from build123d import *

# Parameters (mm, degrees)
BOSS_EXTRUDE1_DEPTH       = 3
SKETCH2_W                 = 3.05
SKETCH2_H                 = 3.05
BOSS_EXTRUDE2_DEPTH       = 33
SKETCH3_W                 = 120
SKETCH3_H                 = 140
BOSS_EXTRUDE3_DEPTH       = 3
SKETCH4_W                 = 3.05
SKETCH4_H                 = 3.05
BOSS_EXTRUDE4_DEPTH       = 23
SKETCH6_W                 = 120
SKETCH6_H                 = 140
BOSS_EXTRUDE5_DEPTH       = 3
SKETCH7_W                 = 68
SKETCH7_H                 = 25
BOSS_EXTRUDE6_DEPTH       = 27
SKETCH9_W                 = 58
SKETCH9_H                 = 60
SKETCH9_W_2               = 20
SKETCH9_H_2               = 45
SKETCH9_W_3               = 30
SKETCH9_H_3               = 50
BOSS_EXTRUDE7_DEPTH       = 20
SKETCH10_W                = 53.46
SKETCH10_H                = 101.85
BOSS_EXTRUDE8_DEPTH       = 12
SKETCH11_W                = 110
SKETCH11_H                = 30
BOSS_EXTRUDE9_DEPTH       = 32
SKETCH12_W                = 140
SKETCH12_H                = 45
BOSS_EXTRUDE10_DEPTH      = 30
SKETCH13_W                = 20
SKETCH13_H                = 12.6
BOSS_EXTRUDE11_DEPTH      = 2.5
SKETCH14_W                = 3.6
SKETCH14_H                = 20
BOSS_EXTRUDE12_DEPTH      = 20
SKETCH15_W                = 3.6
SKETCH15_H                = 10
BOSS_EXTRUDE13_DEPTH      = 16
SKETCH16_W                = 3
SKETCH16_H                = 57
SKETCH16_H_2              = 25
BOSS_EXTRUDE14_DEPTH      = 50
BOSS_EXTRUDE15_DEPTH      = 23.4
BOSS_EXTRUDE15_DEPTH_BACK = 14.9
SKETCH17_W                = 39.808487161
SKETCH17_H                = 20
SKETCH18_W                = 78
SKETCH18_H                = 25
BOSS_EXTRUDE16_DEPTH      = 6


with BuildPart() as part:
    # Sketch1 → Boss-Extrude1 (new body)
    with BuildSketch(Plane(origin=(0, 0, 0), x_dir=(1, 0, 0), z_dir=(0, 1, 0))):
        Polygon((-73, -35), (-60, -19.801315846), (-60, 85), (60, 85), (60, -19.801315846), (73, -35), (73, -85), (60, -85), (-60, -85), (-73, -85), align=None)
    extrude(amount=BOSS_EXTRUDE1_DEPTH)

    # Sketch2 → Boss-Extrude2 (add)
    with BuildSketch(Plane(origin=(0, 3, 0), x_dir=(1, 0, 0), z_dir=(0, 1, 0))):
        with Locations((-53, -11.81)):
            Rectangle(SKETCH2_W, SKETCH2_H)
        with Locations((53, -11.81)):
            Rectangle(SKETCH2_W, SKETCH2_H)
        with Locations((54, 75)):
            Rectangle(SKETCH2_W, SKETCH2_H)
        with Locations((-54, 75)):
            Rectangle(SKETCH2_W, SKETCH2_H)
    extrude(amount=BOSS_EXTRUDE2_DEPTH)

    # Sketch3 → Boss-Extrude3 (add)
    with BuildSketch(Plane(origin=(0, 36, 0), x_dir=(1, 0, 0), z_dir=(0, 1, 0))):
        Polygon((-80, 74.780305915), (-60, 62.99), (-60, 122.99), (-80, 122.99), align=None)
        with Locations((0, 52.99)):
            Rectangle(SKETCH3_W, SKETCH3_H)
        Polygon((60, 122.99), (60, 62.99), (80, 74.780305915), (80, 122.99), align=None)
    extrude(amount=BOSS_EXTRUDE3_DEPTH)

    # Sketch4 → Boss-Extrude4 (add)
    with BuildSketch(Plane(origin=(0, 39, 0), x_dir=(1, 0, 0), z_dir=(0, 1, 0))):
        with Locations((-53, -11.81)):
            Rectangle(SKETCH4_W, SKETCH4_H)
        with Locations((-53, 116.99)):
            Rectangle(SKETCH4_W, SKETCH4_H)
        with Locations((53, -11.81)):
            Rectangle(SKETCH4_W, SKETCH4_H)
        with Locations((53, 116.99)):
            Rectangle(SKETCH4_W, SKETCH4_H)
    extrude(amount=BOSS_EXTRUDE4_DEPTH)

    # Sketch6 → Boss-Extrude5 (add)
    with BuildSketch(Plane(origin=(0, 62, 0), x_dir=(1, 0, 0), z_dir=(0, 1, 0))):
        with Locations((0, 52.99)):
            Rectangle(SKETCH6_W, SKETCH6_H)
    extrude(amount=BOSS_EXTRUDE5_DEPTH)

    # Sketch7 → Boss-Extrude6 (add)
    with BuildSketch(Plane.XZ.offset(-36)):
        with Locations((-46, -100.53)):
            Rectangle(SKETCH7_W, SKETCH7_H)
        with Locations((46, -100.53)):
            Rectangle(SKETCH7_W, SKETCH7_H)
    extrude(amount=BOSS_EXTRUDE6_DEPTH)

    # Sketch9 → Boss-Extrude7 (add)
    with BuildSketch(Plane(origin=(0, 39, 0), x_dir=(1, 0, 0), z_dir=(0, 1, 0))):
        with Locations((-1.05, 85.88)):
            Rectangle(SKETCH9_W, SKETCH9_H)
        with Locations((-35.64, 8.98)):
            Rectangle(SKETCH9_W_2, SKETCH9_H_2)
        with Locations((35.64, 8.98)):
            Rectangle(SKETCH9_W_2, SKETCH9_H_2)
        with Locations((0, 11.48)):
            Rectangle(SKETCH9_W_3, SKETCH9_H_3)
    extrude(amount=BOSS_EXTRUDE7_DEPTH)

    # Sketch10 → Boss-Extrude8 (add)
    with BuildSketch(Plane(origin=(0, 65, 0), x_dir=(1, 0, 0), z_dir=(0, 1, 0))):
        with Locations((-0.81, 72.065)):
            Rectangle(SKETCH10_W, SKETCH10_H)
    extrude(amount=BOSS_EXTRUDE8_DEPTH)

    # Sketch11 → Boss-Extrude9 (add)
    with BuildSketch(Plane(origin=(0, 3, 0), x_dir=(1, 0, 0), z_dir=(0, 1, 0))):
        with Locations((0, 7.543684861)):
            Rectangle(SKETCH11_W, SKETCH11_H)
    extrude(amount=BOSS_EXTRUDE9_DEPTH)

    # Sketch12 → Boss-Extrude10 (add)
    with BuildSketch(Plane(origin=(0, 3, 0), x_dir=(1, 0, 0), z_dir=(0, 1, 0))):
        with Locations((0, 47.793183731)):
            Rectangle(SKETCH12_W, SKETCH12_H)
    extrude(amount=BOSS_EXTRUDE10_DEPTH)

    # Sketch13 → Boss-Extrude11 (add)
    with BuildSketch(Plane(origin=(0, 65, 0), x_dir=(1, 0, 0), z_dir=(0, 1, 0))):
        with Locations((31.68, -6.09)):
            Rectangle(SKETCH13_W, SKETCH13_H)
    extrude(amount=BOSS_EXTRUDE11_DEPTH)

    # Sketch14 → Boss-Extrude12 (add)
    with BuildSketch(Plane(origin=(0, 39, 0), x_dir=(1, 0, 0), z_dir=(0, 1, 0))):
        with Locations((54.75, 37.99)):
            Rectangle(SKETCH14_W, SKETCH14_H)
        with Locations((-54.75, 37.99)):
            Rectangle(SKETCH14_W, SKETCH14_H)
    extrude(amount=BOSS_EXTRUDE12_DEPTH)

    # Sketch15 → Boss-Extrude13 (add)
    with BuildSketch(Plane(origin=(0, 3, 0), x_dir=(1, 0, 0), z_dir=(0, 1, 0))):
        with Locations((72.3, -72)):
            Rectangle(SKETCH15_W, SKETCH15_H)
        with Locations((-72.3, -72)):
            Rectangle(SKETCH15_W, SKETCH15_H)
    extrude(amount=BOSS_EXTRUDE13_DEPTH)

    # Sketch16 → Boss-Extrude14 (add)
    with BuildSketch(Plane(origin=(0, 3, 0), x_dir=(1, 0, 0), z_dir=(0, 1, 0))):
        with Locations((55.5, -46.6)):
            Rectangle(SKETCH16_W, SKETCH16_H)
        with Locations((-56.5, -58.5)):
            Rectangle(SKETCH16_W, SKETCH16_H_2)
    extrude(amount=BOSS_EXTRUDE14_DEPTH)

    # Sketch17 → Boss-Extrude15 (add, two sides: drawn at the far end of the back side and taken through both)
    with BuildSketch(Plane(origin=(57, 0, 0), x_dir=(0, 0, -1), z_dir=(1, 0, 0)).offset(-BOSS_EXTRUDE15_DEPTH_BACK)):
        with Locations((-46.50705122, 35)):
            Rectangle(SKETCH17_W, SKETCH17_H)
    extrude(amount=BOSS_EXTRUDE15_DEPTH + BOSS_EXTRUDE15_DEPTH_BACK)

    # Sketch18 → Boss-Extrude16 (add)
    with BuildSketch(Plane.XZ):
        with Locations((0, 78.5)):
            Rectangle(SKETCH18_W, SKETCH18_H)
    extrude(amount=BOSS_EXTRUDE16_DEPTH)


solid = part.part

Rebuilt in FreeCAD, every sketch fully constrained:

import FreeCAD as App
import Part
import Sketcher
Q = App.Units.Quantity


def add_polygon(sketch, points):
    """Adds a closed chain of lines whose ends are joined by coincident constraints."""
    first, n = sketch.GeometryCount, len(points)
    for a, b in zip(points, points[1:] + points[:1]):
        sketch.addGeometry(Part.LineSegment(App.Vector(*a, 0), App.Vector(*b, 0)), False)
    for i in range(n):
        sketch.addConstraint(Sketcher.Constraint("Coincident", first + i, 2, first + (i + 1) % n, 1))

doc = App.newDocument("Part")
params = doc.addObject("Spreadsheet::Sheet", "Params")
for row, (alias, value) in enumerate([
    ("sketch1_width", "146 mm"),
    ("sketch1_width2", "120 mm"),
    ("sketch1_height", "50 mm"),
    ("sketch1_length", "20 mm"),
    ("pad1_length", "3 mm"),
    ("sketch2_width", "3.05 mm"),
    ("pad2_length", "33 mm"),
    ("sketch3_width", "120 mm"),
    ("sketch3_width2", "160 mm"),
    ("sketch3_height", "80 mm"),
    ("pad3_length", "3 mm"),
    ("sketch4_width", "3.05 mm"),
    ("pad4_length", "23 mm"),
    ("sketch5_width", "120 mm"),
    ("sketch5_height", "140 mm"),
    ("pad5_length", "3 mm"),
    ("sketch6_width", "68 mm"),
    ("sketch6_height", "25 mm"),
    ("pad6_length", "27 mm"),
    ("sketch7_width", "58 mm"),
    ("sketch7_width2", "20 mm"),
    ("sketch7_width3", "30 mm"),
    ("sketch7_height", "60 mm"),
    ("sketch7_height2", "45 mm"),
    ("pad7_length", "20 mm"),
    ("sketch8_width", "53.46 mm"),
    ("sketch8_height", "101.85 mm"),
    ("pad8_length", "12 mm"),
    ("sketch9_width", "110 mm"),
    ("sketch9_height", "30 mm"),
    ("pad9_length", "32 mm"),
    ("sketch10_width", "140 mm"),
    ("sketch10_height", "45 mm"),
    ("pad10_length", "30 mm"),
    ("sketch11_width", "20 mm"),
    ("sketch11_height", "12.6 mm"),
    ("pad11_length", "2.5 mm"),
    ("sketch12_height", "20 mm"),
    ("sketch12_width", "3.6 mm"),
    ("pad12_length", "20 mm"),
    ("sketch13_height", "10 mm"),
    ("sketch13_width", "3.6 mm"),
    ("pad13_length", "16 mm"),
    ("sketch14_width", "3 mm"),
    ("sketch14_height", "57 mm"),
    ("sketch14_height2", "25 mm"),
    ("pad14_length", "50 mm"),
    ("sketch15_width", "20 mm"),
    ("pad15_length", "23.4 mm"),
    ("pad15_length2", "14.9 mm"),
    ("sketch16_width", "78 mm"),
    ("sketch16_height", "25 mm"),
    ("pad16_length", "6 mm"),
], start=1):
    params.set(f"A{row}", alias)
    params.set(f"B{row}", "=" + value)
    params.setAlias(f"B{row}", alias)

body = doc.addObject("PartDesign::Body", "Body")

# Sketch on XZ plane
sketch1 = body.newObject("Sketcher::SketchObject", "Sketch")
sketch1.AttachmentSupport = (doc.getObject("XZ_Plane"), [""])
sketch1.MapMode = "FlatFace"
add_polygon(sketch1, [(-60, 20), (-73, 35), (-73, 85), (73, 85), (73, 35), (60, 20), (60, -85), (-60, -85)])  # lines 0-7
sketch1.addConstraint([
    Sketcher.Constraint("Vertical", 1),
    Sketcher.Constraint("Horizontal", 2),
    Sketcher.Constraint("Vertical", 3),
    Sketcher.Constraint("Vertical", 5),
    Sketcher.Constraint("Horizontal", 6),
    Sketcher.Constraint("Vertical", 7),
    Sketcher.Constraint("Symmetric", 0, 2, 3, 2, -2),
    Sketcher.Constraint("Symmetric", 4, 2, 7, 2, -2),
    Sketcher.Constraint("DistanceX", 2, 1, 2, 2, Q("146 mm")),
    Sketcher.Constraint("DistanceX", 6, 2, 6, 1, Q("120 mm")),
    Sketcher.Constraint("DistanceY", 1, 1, 1, 2, Q("50 mm")),
    Sketcher.Constraint("Distance", 0, Q("20 mm")),
    Sketcher.Constraint("DistanceY", -1, 1, 0, 2, Q("35 mm")),
    Sketcher.Constraint("DistanceY", 5, 2, -1, 1, Q("85 mm")),
])
sketch1.setExpression("Constraints[16]", "Params.sketch1_width")
sketch1.setExpression("Constraints[17]", "Params.sketch1_width2")
sketch1.setExpression("Constraints[18]", "Params.sketch1_height")
sketch1.setExpression("Constraints[19]", "Params.sketch1_length")
pad1 = body.newObject("PartDesign::Pad", "Pad")
pad1.Profile = sketch1
pad1.setExpression("Length", "Params.pad1_length")
pad1.Reversed = True

# Sketch on XZ plane
sketch2 = body.newObject("Sketcher::SketchObject", "Sketch001")
sketch2.AttachmentSupport = (doc.getObject("XZ_Plane"), [""])
sketch2.MapMode = "FlatFace"
sketch2.AttachmentOffset = App.Placement(App.Vector(0, 0, -3), App.Rotation())
add_polygon(sketch2, [(-54.5, 10.3), (-54.5, 13.3), (-51.5, 13.3), (-51.5, 10.3)])  # lines 0-3
add_polygon(sketch2, [(51.5, 10.3), (51.5, 13.3), (54.5, 13.3), (54.5, 10.3)])  # lines 4-7
add_polygon(sketch2, [(52.5, -76.5), (52.5, -73.5), (55.5, -73.5), (55.5, -76.5)])  # lines 8-11
add_polygon(sketch2, [(-55.5, -76.5), (-55.5, -73.5), (-52.5, -73.5), (-52.5, -76.5)])  # lines 12-15
sketch2.addConstraint([
    Sketcher.Constraint("Vertical", 0),
    Sketcher.Constraint("Horizontal", 1),
    Sketcher.Constraint("Vertical", 2),
    Sketcher.Constraint("Horizontal", 3),
    Sketcher.Constraint("Vertical", 4),
    Sketcher.Constraint("Horizontal", 5),
    Sketcher.Constraint("Vertical", 6),
    Sketcher.Constraint("Horizontal", 7),
    Sketcher.Constraint("Vertical", 8),
    Sketcher.Constraint("Horizontal", 9),
    Sketcher.Constraint("Vertical", 10),
    Sketcher.Constraint("Horizontal", 11),
    Sketcher.Constraint("Vertical", 12),
    Sketcher.Constraint("Horizontal", 13),
    Sketcher.Constraint("Vertical", 14),
    Sketcher.Constraint("Horizontal", 15),
    Sketcher.Constraint("Symmetric", 1, 2, 4, 2, -2),
    Sketcher.Constraint("Symmetric", 3, 2, 6, 2, -2),
    Sketcher.Constraint("Symmetric", 9, 2, 12, 2, -2),
    Sketcher.Constraint("Symmetric", 11, 2, 14, 2, -2),
    Sketcher.Constraint("Equal", 7, 9),
    Sketcher.Constraint("Equal", 15, 0),
    Sketcher.Constraint("Equal", 6, 8),
    Sketcher.Constraint("DistanceX", 0, 2, 4, 2, Q("106 mm")),
    Sketcher.Constraint("DistanceX", 7, 2, 8, 2, Q("1 mm")),
    Sketcher.Constraint("DistanceX", 1, 1, 1, 2, Q("3.05 mm")),
    Sketcher.Constraint("DistanceY", 8, 2, 7, 2, Q("83.76 mm")),
    Sketcher.Constraint("DistanceY", -1, 1, 0, 2, Q("13.335 mm")),
])
sketch2.setExpression("Constraints[41]", "Params.sketch2_width")
pad2 = body.newObject("PartDesign::Pad", "Pad001")
pad2.Profile = sketch2
pad2.setExpression("Length", "Params.pad2_length")
pad2.Reversed = True

# Sketch on XZ plane
sketch3 = body.newObject("Sketcher::SketchObject", "Sketch002")
sketch3.AttachmentSupport = (doc.getObject("XZ_Plane"), [""])
sketch3.MapMode = "FlatFace"
sketch3.AttachmentOffset = App.Placement(App.Vector(0, 0, -36), App.Rotation())
add_polygon(sketch3, [(-80, -75), (-60, -63), (-60, 17), (60, 17), (60, -63), (80, -75), (80, -123), (-80, -123)])  # lines 0-7
sketch3.addConstraint([
    Sketcher.Constraint("Vertical", 1),
    Sketcher.Constraint("Horizontal", 2),
    Sketcher.Constraint("Vertical", 3),
    Sketcher.Constraint("Vertical", 5),
    Sketcher.Constraint("Horizontal", 6),
    Sketcher.Constraint("Vertical", 7),
    Sketcher.Constraint("Symmetric", 0, 2, 3, 2, -2),
    Sketcher.Constraint("Symmetric", 4, 2, 7, 2, -2),
    Sketcher.Constraint("DistanceX", 2, 1, 2, 2, Q("120 mm")),
    Sketcher.Constraint("DistanceX", 6, 2, 6, 1, Q("160 mm")),
    Sketcher.Constraint("DistanceY", 1, 1, 1, 2, Q("80 mm")),
    Sketcher.Constraint("DistanceY", 5, 2, 3, 2, Q("60 mm")),
    Sketcher.Constraint("Angle", 0, Q("30.52 deg")),
    Sketcher.Constraint("DistanceY", 0, 2, -1, 1, Q("62.99 mm")),
])
sketch3.setExpression("Constraints[16]", "Params.sketch3_width")
sketch3.setExpression("Constraints[17]", "Params.sketch3_width2")
sketch3.setExpression("Constraints[18]", "Params.sketch3_height")
pad3 = body.newObject("PartDesign::Pad", "Pad002")
pad3.Profile = sketch3
pad3.setExpression("Length", "Params.pad3_length")
pad3.Reversed = True

# Sketch on XZ plane
sketch4 = body.newObject("Sketcher::SketchObject", "Sketch003")
sketch4.AttachmentSupport = (doc.getObject("XZ_Plane"), [""])
sketch4.MapMode = "FlatFace"
sketch4.AttachmentOffset = App.Placement(App.Vector(0, 0, -39), App.Rotation())
add_polygon(sketch4, [(-54.5, 10.3), (-54.5, 13.3), (-51.5, 13.3), (-51.5, 10.3)])  # lines 0-3
add_polygon(sketch4, [(-54.5, -118.5), (-54.5, -115.5), (-51.5, -115.5), (-51.5, -118.5)])  # lines 4-7
add_polygon(sketch4, [(51.5, 10.3), (51.5, 13.3), (54.5, 13.3), (54.5, 10.3)])  # lines 8-11
add_polygon(sketch4, [(51.5, -118.5), (51.5, -115.5), (54.5, -115.5), (54.5, -118.5)])  # lines 12-15
sketch4.addConstraint([
    Sketcher.Constraint("Vertical", 0),
    Sketcher.Constraint("Horizontal", 1),
    Sketcher.Constraint("Vertical", 2),
    Sketcher.Constraint("Horizontal", 3),
    Sketcher.Constraint("Vertical", 4),
    Sketcher.Constraint("Horizontal", 5),
    Sketcher.Constraint("Vertical", 6),
    Sketcher.Constraint("Horizontal", 7),
    Sketcher.Constraint("Vertical", 8),
    Sketcher.Constraint("Horizontal", 9),
    Sketcher.Constraint("Vertical", 10),
    Sketcher.Constraint("Horizontal", 11),
    Sketcher.Constraint("Vertical", 12),
    Sketcher.Constraint("Horizontal", 13),
    Sketcher.Constraint("Vertical", 14),
    Sketcher.Constraint("Horizontal", 15),
    Sketcher.Constraint("Symmetric", 1, 2, 8, 2, -2),
    Sketcher.Constraint("Symmetric", 3, 2, 10, 2, -2),
    Sketcher.Constraint("Symmetric", 5, 2, 12, 2, -2),
    Sketcher.Constraint("Symmetric", 7, 2, 14, 2, -2),
    Sketcher.Constraint("Vertical", 3, 2, 4, 2),
    Sketcher.Constraint("Vertical", 2, 2, 5, 2),
    Sketcher.Constraint("Equal", 15, 0),
    Sketcher.Constraint("Equal", 2, 4),
    Sketcher.Constraint("DistanceX", 0, 2, 8, 2, Q("106 mm")),
    Sketcher.Constraint("DistanceX", 1, 1, 1, 2, Q("3.05 mm")),
    Sketcher.Constraint("DistanceY", 4, 2, 0, 2, Q("128.8 mm")),
    Sketcher.Constraint("DistanceY", -1, 1, 0, 2, Q("13.335 mm")),
])
sketch4.setExpression("Constraints[41]", "Params.sketch4_width")
pad4 = body.newObject("PartDesign::Pad", "Pad003")
pad4.Profile = sketch4
pad4.setExpression("Length", "Params.pad4_length")
pad4.Reversed = True

# Sketch on XZ plane
sketch5 = body.newObject("Sketcher::SketchObject", "Sketch004")
sketch5.AttachmentSupport = (doc.getObject("XZ_Plane"), [""])
sketch5.MapMode = "FlatFace"
sketch5.AttachmentOffset = App.Placement(App.Vector(0, 0, -62), App.Rotation())
add_polygon(sketch5, [(-60, -123), (-60, 17), (60, 17), (60, -123)])  # lines 0-3
sketch5.addConstraint([
    Sketcher.Constraint("Vertical", 0),
    Sketcher.Constraint("Horizontal", 1),
    Sketcher.Constraint("Vertical", 2),
    Sketcher.Constraint("Horizontal", 3),
    Sketcher.Constraint("DistanceX", 1, 1, 1, 2, Q("120 mm")),
    Sketcher.Constraint("DistanceY", 0, 1, 0, 2, Q("140 mm")),
    Sketcher.Constraint("DistanceX", 0, 2, -1, 1, Q("60 mm")),
    Sketcher.Constraint("DistanceY", -1, 1, 0, 2, Q("17.01 mm")),
])
sketch5.setExpression("Constraints[8]", "Params.sketch5_width")
sketch5.setExpression("Constraints[9]", "Params.sketch5_height")
pad5 = body.newObject("PartDesign::Pad", "Pad004")
pad5.Profile = sketch5
pad5.setExpression("Length", "Params.pad5_length")
pad5.Reversed = True

# Sketch on XZ plane
sketch6 = body.newObject("Sketcher::SketchObject", "Sketch005")
sketch6.AttachmentSupport = (doc.getObject("XZ_Plane"), [""])
sketch6.MapMode = "FlatFace"
sketch6.AttachmentOffset = App.Placement(App.Vector(0, 0, -36), App.Rotation())
add_polygon(sketch6, [(-80, -88), (-80, -113), (-12, -113), (-12, -88)])  # lines 0-3
add_polygon(sketch6, [(12, -88), (12, -113), (80, -113), (80, -88)])  # lines 4-7
sketch6.addConstraint([
    Sketcher.Constraint("Vertical", 0),
    Sketcher.Constraint("Horizontal", 1),
    Sketcher.Constraint("Vertical", 2),
    Sketcher.Constraint("Horizontal", 3),
    Sketcher.Constraint("Vertical", 4),
    Sketcher.Constraint("Horizontal", 5),
    Sketcher.Constraint("Vertical", 6),
    Sketcher.Constraint("Horizontal", 7),
    Sketcher.Constraint("Symmetric", 1, 2, 4, 2, -2),
    Sketcher.Constraint("Symmetric", 3, 2, 6, 2, -2),
    Sketcher.Constraint("DistanceX", 1, 1, 1, 2, Q("68 mm")),
    Sketcher.Constraint("DistanceY", 0, 2, 0, 1, Q("25 mm")),
    Sketcher.Constraint("DistanceX", 0, 2, -1, 1, Q("80 mm")),
    Sketcher.Constraint("DistanceY", 0, 2, -1, 1, Q("113.03 mm")),
])
sketch6.setExpression("Constraints[18]", "Params.sketch6_width")
sketch6.setExpression("Constraints[19]", "Params.sketch6_height")
pad6 = body.newObject("PartDesign::Pad", "Pad005")
pad6.Profile = sketch6
pad6.setExpression("Length", "Params.pad6_length")

# Sketch on XZ plane
sketch7 = body.newObject("Sketcher::SketchObject", "Sketch006")
sketch7.AttachmentSupport = (doc.getObject("XZ_Plane"), [""])
sketch7.MapMode = "FlatFace"
sketch7.AttachmentOffset = App.Placement(App.Vector(0, 0, -39), App.Rotation())
add_polygon(sketch7, [(-30, -116), (-30, -56), (28, -56), (28, -116)])  # lines 0-3
add_polygon(sketch7, [(-46, -31), (-46, 14), (-26, 14), (-26, -31)])  # lines 4-7
add_polygon(sketch7, [(26, -31), (26, 14), (46, 14), (46, -31)])  # lines 8-11
add_polygon(sketch7, [(-15, -36), (-15, 14), (15, 14), (15, -36)])  # lines 12-15
sketch7.addConstraint([
    Sketcher.Constraint("Vertical", 0),
    Sketcher.Constraint("Horizontal", 1),
    Sketcher.Constraint("Vertical", 2),
    Sketcher.Constraint("Horizontal", 3),
    Sketcher.Constraint("Vertical", 4),
    Sketcher.Constraint("Horizontal", 5),
    Sketcher.Constraint("Vertical", 6),
    Sketcher.Constraint("Horizontal", 7),
    Sketcher.Constraint("Vertical", 8),
    Sketcher.Constraint("Horizontal", 9),
    Sketcher.Constraint("Vertical", 10),
    Sketcher.Constraint("Horizontal", 11),
    Sketcher.Constraint("Vertical", 12),
    Sketcher.Constraint("Horizontal", 13),
    Sketcher.Constraint("Vertical", 14),
    Sketcher.Constraint("Horizontal", 15),
    Sketcher.Constraint("Symmetric", 5, 2, 8, 2, -2),
    Sketcher.Constraint("Symmetric", 7, 2, 10, 2, -2),
    Sketcher.Constraint("Horizontal", 9, 2, 12, 2),
    Sketcher.Constraint("DistanceX", 1, 1, 1, 2, Q("58 mm")),
    Sketcher.Constraint("DistanceX", 5, 1, 5, 2, Q("20 mm")),
    Sketcher.Constraint("DistanceX", 13, 1, 13, 2, Q("30 mm")),
    Sketcher.Constraint("DistanceY", 0, 1, 0, 2, Q("60 mm")),
    Sketcher.Constraint("DistanceY", 4, 1, 4, 2, Q("45 mm")),
    Sketcher.Constraint("DistanceY", 12, 1, 12, 2, Q("50 mm")),
    Sketcher.Constraint("DistanceX", 12, 2, -1, 1, Q("15 mm")),
    Sketcher.Constraint("DistanceY", 0, 2, 4, 2, Q("69.4 mm")),
    Sketcher.Constraint("DistanceX", 0, 2, -1, 1, Q("30.05 mm")),
    Sketcher.Constraint("DistanceY", 0, 2, -1, 1, Q("55.88 mm")),
    Sketcher.Constraint("DistanceX", 4, 2, -1, 1, Q("45.64 mm")),
])
sketch7.setExpression("Constraints[35]", "Params.sketch7_width")
sketch7.setExpression("Constraints[36]", "Params.sketch7_width2")
sketch7.setExpression("Constraints[37]", "Params.sketch7_width3")
sketch7.setExpression("Constraints[38]", "Params.sketch7_height")
sketch7.setExpression("Constraints[39]", "Params.sketch7_height2")
pad7 = body.newObject("PartDesign::Pad", "Pad006")
pad7.Profile = sketch7
pad7.setExpression("Length", "Params.pad7_length")
pad7.Reversed = True

# Sketch on XZ plane
sketch8 = body.newObject("Sketcher::SketchObject", "Sketch007")
sketch8.AttachmentSupport = (doc.getObject("XZ_Plane"), [""])
sketch8.MapMode = "FlatFace"
sketch8.AttachmentOffset = App.Placement(App.Vector(0, 0, -65), App.Rotation())
add_polygon(sketch8, [(-28, -123), (-28, -21), (26, -21), (26, -123)])  # lines 0-3
sketch8.addConstraint([
    Sketcher.Constraint("Vertical", 0),
    Sketcher.Constraint("Horizontal", 1),
    Sketcher.Constraint("Vertical", 2),
    Sketcher.Constraint("Horizontal", 3),
    Sketcher.Constraint("DistanceX", 1, 1, 1, 2, Q("53.46 mm")),
    Sketcher.Constraint("DistanceY", 0, 1, 0, 2, Q("101.85 mm")),
    Sketcher.Constraint("DistanceX", 0, 2, -1, 1, Q("27.54 mm")),
    Sketcher.Constraint("DistanceY", 0, 2, -1, 1, Q("21.14 mm")),
])
sketch8.setExpression("Constraints[8]", "Params.sketch8_width")
sketch8.setExpression("Constraints[9]", "Params.sketch8_height")
pad8 = body.newObject("PartDesign::Pad", "Pad007")
pad8.Profile = sketch8
pad8.setExpression("Length", "Params.pad8_length")
pad8.Reversed = True

# Sketch on XZ plane
sketch9 = body.newObject("Sketcher::SketchObject", "Sketch008")
sketch9.AttachmentSupport = (doc.getObject("XZ_Plane"), [""])
sketch9.MapMode = "FlatFace"
sketch9.AttachmentOffset = App.Placement(App.Vector(0, 0, -3), App.Rotation())
add_polygon(sketch9, [(-55, -23), (-55, 7), (55, 7), (55, -23)])  # lines 0-3
sketch9.addConstraint([
    Sketcher.Constraint("Vertical", 0),
    Sketcher.Constraint("Horizontal", 1),
    Sketcher.Constraint("Vertical", 2),
    Sketcher.Constraint("Horizontal", 3),
    Sketcher.Constraint("DistanceX", 1, 1, 1, 2, Q("110 mm")),
    Sketcher.Constraint("DistanceY", 0, 1, 0, 2, Q("30 mm")),
    Sketcher.Constraint("DistanceX", 0, 2, -1, 1, Q("55 mm")),
    Sketcher.Constraint("DistanceY", -1, 1, 0, 2, Q("7.456315 mm")),
])
sketch9.setExpression("Constraints[8]", "Params.sketch9_width")
sketch9.setExpression("Constraints[9]", "Params.sketch9_height")
pad9 = body.newObject("PartDesign::Pad", "Pad008")
pad9.Profile = sketch9
pad9.setExpression("Length", "Params.pad9_length")
pad9.Reversed = True

# Sketch on XZ plane
sketch10 = body.newObject("Sketcher::SketchObject", "Sketch009")
sketch10.AttachmentSupport = (doc.getObject("XZ_Plane"), [""])
sketch10.MapMode = "FlatFace"
sketch10.AttachmentOffset = App.Placement(App.Vector(0, 0, -3), App.Rotation())
add_polygon(sketch10, [(-70, -70), (-70, -25), (70, -25), (70, -70)])  # lines 0-3
sketch10.addConstraint([
    Sketcher.Constraint("Vertical", 0),
    Sketcher.Constraint("Horizontal", 1),
    Sketcher.Constraint("Vertical", 2),
    Sketcher.Constraint("Horizontal", 3),
    Sketcher.Constraint("DistanceX", 1, 1, 1, 2, Q("140 mm")),
    Sketcher.Constraint("DistanceY", 0, 1, 0, 2, Q("45 mm")),
    Sketcher.Constraint("DistanceX", 0, 2, -1, 1, Q("70 mm")),
    Sketcher.Constraint("DistanceY", 0, 2, -1, 1, Q("25.293184 mm")),
])
sketch10.setExpression("Constraints[8]", "Params.sketch10_width")
sketch10.setExpression("Constraints[9]", "Params.sketch10_height")
pad10 = body.newObject("PartDesign::Pad", "Pad009")
pad10.Profile = sketch10
pad10.setExpression("Length", "Params.pad10_length")
pad10.Reversed = True

# Sketch on XZ plane
sketch11 = body.newObject("Sketcher::SketchObject", "Sketch010")
sketch11.AttachmentSupport = (doc.getObject("XZ_Plane"), [""])
sketch11.MapMode = "FlatFace"
sketch11.AttachmentOffset = App.Placement(App.Vector(0, 0, -65), App.Rotation())
add_polygon(sketch11, [(22, 0), (22, 12), (42, 12), (42, 0)])  # lines 0-3
sketch11.addConstraint([
    Sketcher.Constraint("Vertical", 0),
    Sketcher.Constraint("Horizontal", 1),
    Sketcher.Constraint("Vertical", 2),
    Sketcher.Constraint("Horizontal", 3),
    Sketcher.Constraint("DistanceX", 1, 1, 1, 2, Q("20 mm")),
    Sketcher.Constraint("DistanceY", 0, 1, 0, 2, Q("12.6 mm")),
    Sketcher.Constraint("DistanceX", -1, 1, 0, 2, Q("21.68 mm")),
    Sketcher.Constraint("DistanceY", -1, 1, 0, 2, Q("12.39 mm")),
])
sketch11.setExpression("Constraints[8]", "Params.sketch11_width")
sketch11.setExpression("Constraints[9]", "Params.sketch11_height")
pad11 = body.newObject("PartDesign::Pad", "Pad010")
pad11.Profile = sketch11
pad11.setExpression("Length", "Params.pad11_length")
pad11.Reversed = True

# Sketch on XZ plane
sketch12 = body.newObject("Sketcher::SketchObject", "Sketch011")
sketch12.AttachmentSupport = (doc.getObject("XZ_Plane"), [""])
sketch12.MapMode = "FlatFace"
sketch12.AttachmentOffset = App.Placement(App.Vector(0, 0, -39), App.Rotation())
add_polygon(sketch12, [(53, -48), (53, -28), (56.5, -28), (56.5, -48)])  # lines 0-3
add_polygon(sketch12, [(-56.5, -48), (-56.5, -28), (-53, -28), (-53, -48)])  # lines 4-7
sketch12.addConstraint([
    Sketcher.Constraint("Vertical", 0),
    Sketcher.Constraint("Horizontal", 1),
    Sketcher.Constraint("Vertical", 2),
    Sketcher.Constraint("Horizontal", 3),
    Sketcher.Constraint("Vertical", 4),
    Sketcher.Constraint("Horizontal", 5),
    Sketcher.Constraint("Vertical", 6),
    Sketcher.Constraint("Horizontal", 7),
    Sketcher.Constraint("Symmetric", 1, 2, 4, 2, -2),
    Sketcher.Constraint("Symmetric", 3, 2, 6, 2, -2),
    Sketcher.Constraint("DistanceY", 0, 1, 0, 2, Q("20 mm")),
    Sketcher.Constraint("DistanceX", 1, 1, 1, 2, Q("3.6 mm")),
    Sketcher.Constraint("DistanceX", 4, 2, 0, 2, Q("109.5 mm")),
    Sketcher.Constraint("DistanceY", 0, 2, -1, 1, Q("27.99 mm")),
])
sketch12.setExpression("Constraints[18]", "Params.sketch12_height")
sketch12.setExpression("Constraints[19]", "Params.sketch12_width")
pad12 = body.newObject("PartDesign::Pad", "Pad011")
pad12.Profile = sketch12
pad12.setExpression("Length", "Params.pad12_length")
pad12.Reversed = True

# Sketch on XZ plane
sketch13 = body.newObject("Sketcher::SketchObject", "Sketch012")
sketch13.AttachmentSupport = (doc.getObject("XZ_Plane"), [""])
sketch13.MapMode = "FlatFace"
sketch13.AttachmentOffset = App.Placement(App.Vector(0, 0, -3), App.Rotation())
add_polygon(sketch13, [(70.5, 67), (70.5, 77), (74.1, 77), (74.1, 67)])  # lines 0-3
add_polygon(sketch13, [(-74.1, 67), (-74.1, 77), (-70.5, 77), (-70.5, 67)])  # lines 4-7
sketch13.addConstraint([
    Sketcher.Constraint("Vertical", 0),
    Sketcher.Constraint("Horizontal", 1),
    Sketcher.Constraint("Vertical", 2),
    Sketcher.Constraint("Horizontal", 3),
    Sketcher.Constraint("Vertical", 4),
    Sketcher.Constraint("Horizontal", 5),
    Sketcher.Constraint("Vertical", 6),
    Sketcher.Constraint("Horizontal", 7),
    Sketcher.Constraint("Symmetric", 1, 2, 4, 2, -2),
    Sketcher.Constraint("Symmetric", 3, 2, 6, 2, -2),
    Sketcher.Constraint("DistanceY", 0, 1, 0, 2, Q("10 mm")),
    Sketcher.Constraint("DistanceX", 1, 1, 1, 2, Q("3.6 mm")),
    Sketcher.Constraint("DistanceY", -1, 1, 0, 2, Q("77 mm")),
    Sketcher.Constraint("DistanceX", 5, 2, 0, 2, Q("141 mm")),
])
sketch13.setExpression("Constraints[18]", "Params.sketch13_height")
sketch13.setExpression("Constraints[19]", "Params.sketch13_width")
pad13 = body.newObject("PartDesign::Pad", "Pad012")
pad13.Profile = sketch13
pad13.setExpression("Length", "Params.pad13_length")
pad13.Reversed = True

# Sketch on XZ plane
sketch14 = body.newObject("Sketcher::SketchObject", "Sketch013")
sketch14.AttachmentSupport = (doc.getObject("XZ_Plane"), [""])
sketch14.MapMode = "FlatFace"
sketch14.AttachmentOffset = App.Placement(App.Vector(0, 0, -3), App.Rotation())
add_polygon(sketch14, [(54, 18.1), (54, 75.1), (57, 75.1), (57, 18.1)])  # lines 0-3
add_polygon(sketch14, [(-58, 46), (-58, 71), (-55, 71), (-55, 46)])  # lines 4-7
sketch14.addConstraint([
    Sketcher.Constraint("Vertical", 0),
    Sketcher.Constraint("Horizontal", 1),
    Sketcher.Constraint("Vertical", 2),
    Sketcher.Constraint("Horizontal", 3),
    Sketcher.Constraint("Vertical", 4),
    Sketcher.Constraint("Horizontal", 5),
    Sketcher.Constraint("Vertical", 6),
    Sketcher.Constraint("Horizontal", 7),
    Sketcher.Constraint("Equal", 3, 5),
    Sketcher.Constraint("DistanceX", 1, 1, 1, 2, Q("3 mm")),
    Sketcher.Constraint("DistanceY", 0, 1, 0, 2, Q("57 mm")),
    Sketcher.Constraint("DistanceY", 4, 1, 4, 2, Q("25 mm")),
    Sketcher.Constraint("DistanceX", -1, 1, 0, 2, Q("54 mm")),
    Sketcher.Constraint("DistanceX", 4, 2, -1, 1, Q("58 mm")),
    Sketcher.Constraint("DistanceY", -1, 1, 4, 2, Q("71 mm")),
    Sketcher.Constraint("DistanceY", -1, 1, 0, 2, Q("75.1 mm")),
])
sketch14.setExpression("Constraints[17]", "Params.sketch14_width")
sketch14.setExpression("Constraints[18]", "Params.sketch14_height")
sketch14.setExpression("Constraints[19]", "Params.sketch14_height2")
pad14 = body.newObject("PartDesign::Pad", "Pad013")
pad14.Profile = sketch14
pad14.setExpression("Length", "Params.pad14_length")
pad14.Reversed = True

# Sketch on YZ plane
sketch15 = body.newObject("Sketcher::SketchObject", "Sketch014")
sketch15.AttachmentSupport = (doc.getObject("YZ_Plane"), [""])
sketch15.MapMode = "FlatFace"
sketch15.AttachmentOffset = App.Placement(App.Vector(0, 0, 57), App.Rotation())
add_polygon(sketch15, [(45, 66), (25, 66), (25, 27), (45, 27)])  # lines 0-3
sketch15.addConstraint([
    Sketcher.Constraint("Horizontal", 0),
    Sketcher.Constraint("Vertical", 1),
    Sketcher.Constraint("Horizontal", 2),
    Sketcher.Constraint("Vertical", 3),
    Sketcher.Constraint("DistanceX", 0, 2, 0, 1, Q("20 mm")),
    Sketcher.Constraint("DistanceX", -1, 1, 0, 2, Q("25 mm")),
    Sketcher.Constraint("DistanceY", 1, 2, 1, 1, Q("39.808487 mm")),
    Sketcher.Constraint("DistanceY", -1, 1, 0, 2, Q("66.411295 mm")),
])
sketch15.setExpression("Constraints[8]", "Params.sketch15_width")
pad15 = body.newObject("PartDesign::Pad", "Pad014")
pad15.Profile = sketch15
pad15.Type = "TwoLengths"
pad15.setExpression("Length", "Params.pad15_length")
pad15.setExpression("Length2", "Params.pad15_length2")

# Sketch on XZ plane
sketch16 = body.newObject("Sketcher::SketchObject", "Sketch015")
sketch16.AttachmentSupport = (doc.getObject("XZ_Plane"), [""])
sketch16.MapMode = "FlatFace"
add_polygon(sketch16, [(-39, 91), (-39, 66), (39, 66), (39, 91)])  # lines 0-3
sketch16.addConstraint([
    Sketcher.Constraint("Vertical", 0),
    Sketcher.Constraint("Horizontal", 1),
    Sketcher.Constraint("Vertical", 2),
    Sketcher.Constraint("Horizontal", 3),
    Sketcher.Constraint("DistanceX", 1, 1, 1, 2, Q("78 mm")),
    Sketcher.Constraint("DistanceY", 0, 2, 0, 1, Q("25 mm")),
    Sketcher.Constraint("DistanceX", 0, 2, -1, 1, Q("39 mm")),
    Sketcher.Constraint("DistanceY", -1, 1, 0, 2, Q("66 mm")),
])
sketch16.setExpression("Constraints[8]", "Params.sketch16_width")
sketch16.setExpression("Constraints[9]", "Params.sketch16_height")
pad16 = body.newObject("PartDesign::Pad", "Pad015")
pad16.Profile = sketch16
pad16.setExpression("Length", "Params.pad16_length")

doc.recompute()
